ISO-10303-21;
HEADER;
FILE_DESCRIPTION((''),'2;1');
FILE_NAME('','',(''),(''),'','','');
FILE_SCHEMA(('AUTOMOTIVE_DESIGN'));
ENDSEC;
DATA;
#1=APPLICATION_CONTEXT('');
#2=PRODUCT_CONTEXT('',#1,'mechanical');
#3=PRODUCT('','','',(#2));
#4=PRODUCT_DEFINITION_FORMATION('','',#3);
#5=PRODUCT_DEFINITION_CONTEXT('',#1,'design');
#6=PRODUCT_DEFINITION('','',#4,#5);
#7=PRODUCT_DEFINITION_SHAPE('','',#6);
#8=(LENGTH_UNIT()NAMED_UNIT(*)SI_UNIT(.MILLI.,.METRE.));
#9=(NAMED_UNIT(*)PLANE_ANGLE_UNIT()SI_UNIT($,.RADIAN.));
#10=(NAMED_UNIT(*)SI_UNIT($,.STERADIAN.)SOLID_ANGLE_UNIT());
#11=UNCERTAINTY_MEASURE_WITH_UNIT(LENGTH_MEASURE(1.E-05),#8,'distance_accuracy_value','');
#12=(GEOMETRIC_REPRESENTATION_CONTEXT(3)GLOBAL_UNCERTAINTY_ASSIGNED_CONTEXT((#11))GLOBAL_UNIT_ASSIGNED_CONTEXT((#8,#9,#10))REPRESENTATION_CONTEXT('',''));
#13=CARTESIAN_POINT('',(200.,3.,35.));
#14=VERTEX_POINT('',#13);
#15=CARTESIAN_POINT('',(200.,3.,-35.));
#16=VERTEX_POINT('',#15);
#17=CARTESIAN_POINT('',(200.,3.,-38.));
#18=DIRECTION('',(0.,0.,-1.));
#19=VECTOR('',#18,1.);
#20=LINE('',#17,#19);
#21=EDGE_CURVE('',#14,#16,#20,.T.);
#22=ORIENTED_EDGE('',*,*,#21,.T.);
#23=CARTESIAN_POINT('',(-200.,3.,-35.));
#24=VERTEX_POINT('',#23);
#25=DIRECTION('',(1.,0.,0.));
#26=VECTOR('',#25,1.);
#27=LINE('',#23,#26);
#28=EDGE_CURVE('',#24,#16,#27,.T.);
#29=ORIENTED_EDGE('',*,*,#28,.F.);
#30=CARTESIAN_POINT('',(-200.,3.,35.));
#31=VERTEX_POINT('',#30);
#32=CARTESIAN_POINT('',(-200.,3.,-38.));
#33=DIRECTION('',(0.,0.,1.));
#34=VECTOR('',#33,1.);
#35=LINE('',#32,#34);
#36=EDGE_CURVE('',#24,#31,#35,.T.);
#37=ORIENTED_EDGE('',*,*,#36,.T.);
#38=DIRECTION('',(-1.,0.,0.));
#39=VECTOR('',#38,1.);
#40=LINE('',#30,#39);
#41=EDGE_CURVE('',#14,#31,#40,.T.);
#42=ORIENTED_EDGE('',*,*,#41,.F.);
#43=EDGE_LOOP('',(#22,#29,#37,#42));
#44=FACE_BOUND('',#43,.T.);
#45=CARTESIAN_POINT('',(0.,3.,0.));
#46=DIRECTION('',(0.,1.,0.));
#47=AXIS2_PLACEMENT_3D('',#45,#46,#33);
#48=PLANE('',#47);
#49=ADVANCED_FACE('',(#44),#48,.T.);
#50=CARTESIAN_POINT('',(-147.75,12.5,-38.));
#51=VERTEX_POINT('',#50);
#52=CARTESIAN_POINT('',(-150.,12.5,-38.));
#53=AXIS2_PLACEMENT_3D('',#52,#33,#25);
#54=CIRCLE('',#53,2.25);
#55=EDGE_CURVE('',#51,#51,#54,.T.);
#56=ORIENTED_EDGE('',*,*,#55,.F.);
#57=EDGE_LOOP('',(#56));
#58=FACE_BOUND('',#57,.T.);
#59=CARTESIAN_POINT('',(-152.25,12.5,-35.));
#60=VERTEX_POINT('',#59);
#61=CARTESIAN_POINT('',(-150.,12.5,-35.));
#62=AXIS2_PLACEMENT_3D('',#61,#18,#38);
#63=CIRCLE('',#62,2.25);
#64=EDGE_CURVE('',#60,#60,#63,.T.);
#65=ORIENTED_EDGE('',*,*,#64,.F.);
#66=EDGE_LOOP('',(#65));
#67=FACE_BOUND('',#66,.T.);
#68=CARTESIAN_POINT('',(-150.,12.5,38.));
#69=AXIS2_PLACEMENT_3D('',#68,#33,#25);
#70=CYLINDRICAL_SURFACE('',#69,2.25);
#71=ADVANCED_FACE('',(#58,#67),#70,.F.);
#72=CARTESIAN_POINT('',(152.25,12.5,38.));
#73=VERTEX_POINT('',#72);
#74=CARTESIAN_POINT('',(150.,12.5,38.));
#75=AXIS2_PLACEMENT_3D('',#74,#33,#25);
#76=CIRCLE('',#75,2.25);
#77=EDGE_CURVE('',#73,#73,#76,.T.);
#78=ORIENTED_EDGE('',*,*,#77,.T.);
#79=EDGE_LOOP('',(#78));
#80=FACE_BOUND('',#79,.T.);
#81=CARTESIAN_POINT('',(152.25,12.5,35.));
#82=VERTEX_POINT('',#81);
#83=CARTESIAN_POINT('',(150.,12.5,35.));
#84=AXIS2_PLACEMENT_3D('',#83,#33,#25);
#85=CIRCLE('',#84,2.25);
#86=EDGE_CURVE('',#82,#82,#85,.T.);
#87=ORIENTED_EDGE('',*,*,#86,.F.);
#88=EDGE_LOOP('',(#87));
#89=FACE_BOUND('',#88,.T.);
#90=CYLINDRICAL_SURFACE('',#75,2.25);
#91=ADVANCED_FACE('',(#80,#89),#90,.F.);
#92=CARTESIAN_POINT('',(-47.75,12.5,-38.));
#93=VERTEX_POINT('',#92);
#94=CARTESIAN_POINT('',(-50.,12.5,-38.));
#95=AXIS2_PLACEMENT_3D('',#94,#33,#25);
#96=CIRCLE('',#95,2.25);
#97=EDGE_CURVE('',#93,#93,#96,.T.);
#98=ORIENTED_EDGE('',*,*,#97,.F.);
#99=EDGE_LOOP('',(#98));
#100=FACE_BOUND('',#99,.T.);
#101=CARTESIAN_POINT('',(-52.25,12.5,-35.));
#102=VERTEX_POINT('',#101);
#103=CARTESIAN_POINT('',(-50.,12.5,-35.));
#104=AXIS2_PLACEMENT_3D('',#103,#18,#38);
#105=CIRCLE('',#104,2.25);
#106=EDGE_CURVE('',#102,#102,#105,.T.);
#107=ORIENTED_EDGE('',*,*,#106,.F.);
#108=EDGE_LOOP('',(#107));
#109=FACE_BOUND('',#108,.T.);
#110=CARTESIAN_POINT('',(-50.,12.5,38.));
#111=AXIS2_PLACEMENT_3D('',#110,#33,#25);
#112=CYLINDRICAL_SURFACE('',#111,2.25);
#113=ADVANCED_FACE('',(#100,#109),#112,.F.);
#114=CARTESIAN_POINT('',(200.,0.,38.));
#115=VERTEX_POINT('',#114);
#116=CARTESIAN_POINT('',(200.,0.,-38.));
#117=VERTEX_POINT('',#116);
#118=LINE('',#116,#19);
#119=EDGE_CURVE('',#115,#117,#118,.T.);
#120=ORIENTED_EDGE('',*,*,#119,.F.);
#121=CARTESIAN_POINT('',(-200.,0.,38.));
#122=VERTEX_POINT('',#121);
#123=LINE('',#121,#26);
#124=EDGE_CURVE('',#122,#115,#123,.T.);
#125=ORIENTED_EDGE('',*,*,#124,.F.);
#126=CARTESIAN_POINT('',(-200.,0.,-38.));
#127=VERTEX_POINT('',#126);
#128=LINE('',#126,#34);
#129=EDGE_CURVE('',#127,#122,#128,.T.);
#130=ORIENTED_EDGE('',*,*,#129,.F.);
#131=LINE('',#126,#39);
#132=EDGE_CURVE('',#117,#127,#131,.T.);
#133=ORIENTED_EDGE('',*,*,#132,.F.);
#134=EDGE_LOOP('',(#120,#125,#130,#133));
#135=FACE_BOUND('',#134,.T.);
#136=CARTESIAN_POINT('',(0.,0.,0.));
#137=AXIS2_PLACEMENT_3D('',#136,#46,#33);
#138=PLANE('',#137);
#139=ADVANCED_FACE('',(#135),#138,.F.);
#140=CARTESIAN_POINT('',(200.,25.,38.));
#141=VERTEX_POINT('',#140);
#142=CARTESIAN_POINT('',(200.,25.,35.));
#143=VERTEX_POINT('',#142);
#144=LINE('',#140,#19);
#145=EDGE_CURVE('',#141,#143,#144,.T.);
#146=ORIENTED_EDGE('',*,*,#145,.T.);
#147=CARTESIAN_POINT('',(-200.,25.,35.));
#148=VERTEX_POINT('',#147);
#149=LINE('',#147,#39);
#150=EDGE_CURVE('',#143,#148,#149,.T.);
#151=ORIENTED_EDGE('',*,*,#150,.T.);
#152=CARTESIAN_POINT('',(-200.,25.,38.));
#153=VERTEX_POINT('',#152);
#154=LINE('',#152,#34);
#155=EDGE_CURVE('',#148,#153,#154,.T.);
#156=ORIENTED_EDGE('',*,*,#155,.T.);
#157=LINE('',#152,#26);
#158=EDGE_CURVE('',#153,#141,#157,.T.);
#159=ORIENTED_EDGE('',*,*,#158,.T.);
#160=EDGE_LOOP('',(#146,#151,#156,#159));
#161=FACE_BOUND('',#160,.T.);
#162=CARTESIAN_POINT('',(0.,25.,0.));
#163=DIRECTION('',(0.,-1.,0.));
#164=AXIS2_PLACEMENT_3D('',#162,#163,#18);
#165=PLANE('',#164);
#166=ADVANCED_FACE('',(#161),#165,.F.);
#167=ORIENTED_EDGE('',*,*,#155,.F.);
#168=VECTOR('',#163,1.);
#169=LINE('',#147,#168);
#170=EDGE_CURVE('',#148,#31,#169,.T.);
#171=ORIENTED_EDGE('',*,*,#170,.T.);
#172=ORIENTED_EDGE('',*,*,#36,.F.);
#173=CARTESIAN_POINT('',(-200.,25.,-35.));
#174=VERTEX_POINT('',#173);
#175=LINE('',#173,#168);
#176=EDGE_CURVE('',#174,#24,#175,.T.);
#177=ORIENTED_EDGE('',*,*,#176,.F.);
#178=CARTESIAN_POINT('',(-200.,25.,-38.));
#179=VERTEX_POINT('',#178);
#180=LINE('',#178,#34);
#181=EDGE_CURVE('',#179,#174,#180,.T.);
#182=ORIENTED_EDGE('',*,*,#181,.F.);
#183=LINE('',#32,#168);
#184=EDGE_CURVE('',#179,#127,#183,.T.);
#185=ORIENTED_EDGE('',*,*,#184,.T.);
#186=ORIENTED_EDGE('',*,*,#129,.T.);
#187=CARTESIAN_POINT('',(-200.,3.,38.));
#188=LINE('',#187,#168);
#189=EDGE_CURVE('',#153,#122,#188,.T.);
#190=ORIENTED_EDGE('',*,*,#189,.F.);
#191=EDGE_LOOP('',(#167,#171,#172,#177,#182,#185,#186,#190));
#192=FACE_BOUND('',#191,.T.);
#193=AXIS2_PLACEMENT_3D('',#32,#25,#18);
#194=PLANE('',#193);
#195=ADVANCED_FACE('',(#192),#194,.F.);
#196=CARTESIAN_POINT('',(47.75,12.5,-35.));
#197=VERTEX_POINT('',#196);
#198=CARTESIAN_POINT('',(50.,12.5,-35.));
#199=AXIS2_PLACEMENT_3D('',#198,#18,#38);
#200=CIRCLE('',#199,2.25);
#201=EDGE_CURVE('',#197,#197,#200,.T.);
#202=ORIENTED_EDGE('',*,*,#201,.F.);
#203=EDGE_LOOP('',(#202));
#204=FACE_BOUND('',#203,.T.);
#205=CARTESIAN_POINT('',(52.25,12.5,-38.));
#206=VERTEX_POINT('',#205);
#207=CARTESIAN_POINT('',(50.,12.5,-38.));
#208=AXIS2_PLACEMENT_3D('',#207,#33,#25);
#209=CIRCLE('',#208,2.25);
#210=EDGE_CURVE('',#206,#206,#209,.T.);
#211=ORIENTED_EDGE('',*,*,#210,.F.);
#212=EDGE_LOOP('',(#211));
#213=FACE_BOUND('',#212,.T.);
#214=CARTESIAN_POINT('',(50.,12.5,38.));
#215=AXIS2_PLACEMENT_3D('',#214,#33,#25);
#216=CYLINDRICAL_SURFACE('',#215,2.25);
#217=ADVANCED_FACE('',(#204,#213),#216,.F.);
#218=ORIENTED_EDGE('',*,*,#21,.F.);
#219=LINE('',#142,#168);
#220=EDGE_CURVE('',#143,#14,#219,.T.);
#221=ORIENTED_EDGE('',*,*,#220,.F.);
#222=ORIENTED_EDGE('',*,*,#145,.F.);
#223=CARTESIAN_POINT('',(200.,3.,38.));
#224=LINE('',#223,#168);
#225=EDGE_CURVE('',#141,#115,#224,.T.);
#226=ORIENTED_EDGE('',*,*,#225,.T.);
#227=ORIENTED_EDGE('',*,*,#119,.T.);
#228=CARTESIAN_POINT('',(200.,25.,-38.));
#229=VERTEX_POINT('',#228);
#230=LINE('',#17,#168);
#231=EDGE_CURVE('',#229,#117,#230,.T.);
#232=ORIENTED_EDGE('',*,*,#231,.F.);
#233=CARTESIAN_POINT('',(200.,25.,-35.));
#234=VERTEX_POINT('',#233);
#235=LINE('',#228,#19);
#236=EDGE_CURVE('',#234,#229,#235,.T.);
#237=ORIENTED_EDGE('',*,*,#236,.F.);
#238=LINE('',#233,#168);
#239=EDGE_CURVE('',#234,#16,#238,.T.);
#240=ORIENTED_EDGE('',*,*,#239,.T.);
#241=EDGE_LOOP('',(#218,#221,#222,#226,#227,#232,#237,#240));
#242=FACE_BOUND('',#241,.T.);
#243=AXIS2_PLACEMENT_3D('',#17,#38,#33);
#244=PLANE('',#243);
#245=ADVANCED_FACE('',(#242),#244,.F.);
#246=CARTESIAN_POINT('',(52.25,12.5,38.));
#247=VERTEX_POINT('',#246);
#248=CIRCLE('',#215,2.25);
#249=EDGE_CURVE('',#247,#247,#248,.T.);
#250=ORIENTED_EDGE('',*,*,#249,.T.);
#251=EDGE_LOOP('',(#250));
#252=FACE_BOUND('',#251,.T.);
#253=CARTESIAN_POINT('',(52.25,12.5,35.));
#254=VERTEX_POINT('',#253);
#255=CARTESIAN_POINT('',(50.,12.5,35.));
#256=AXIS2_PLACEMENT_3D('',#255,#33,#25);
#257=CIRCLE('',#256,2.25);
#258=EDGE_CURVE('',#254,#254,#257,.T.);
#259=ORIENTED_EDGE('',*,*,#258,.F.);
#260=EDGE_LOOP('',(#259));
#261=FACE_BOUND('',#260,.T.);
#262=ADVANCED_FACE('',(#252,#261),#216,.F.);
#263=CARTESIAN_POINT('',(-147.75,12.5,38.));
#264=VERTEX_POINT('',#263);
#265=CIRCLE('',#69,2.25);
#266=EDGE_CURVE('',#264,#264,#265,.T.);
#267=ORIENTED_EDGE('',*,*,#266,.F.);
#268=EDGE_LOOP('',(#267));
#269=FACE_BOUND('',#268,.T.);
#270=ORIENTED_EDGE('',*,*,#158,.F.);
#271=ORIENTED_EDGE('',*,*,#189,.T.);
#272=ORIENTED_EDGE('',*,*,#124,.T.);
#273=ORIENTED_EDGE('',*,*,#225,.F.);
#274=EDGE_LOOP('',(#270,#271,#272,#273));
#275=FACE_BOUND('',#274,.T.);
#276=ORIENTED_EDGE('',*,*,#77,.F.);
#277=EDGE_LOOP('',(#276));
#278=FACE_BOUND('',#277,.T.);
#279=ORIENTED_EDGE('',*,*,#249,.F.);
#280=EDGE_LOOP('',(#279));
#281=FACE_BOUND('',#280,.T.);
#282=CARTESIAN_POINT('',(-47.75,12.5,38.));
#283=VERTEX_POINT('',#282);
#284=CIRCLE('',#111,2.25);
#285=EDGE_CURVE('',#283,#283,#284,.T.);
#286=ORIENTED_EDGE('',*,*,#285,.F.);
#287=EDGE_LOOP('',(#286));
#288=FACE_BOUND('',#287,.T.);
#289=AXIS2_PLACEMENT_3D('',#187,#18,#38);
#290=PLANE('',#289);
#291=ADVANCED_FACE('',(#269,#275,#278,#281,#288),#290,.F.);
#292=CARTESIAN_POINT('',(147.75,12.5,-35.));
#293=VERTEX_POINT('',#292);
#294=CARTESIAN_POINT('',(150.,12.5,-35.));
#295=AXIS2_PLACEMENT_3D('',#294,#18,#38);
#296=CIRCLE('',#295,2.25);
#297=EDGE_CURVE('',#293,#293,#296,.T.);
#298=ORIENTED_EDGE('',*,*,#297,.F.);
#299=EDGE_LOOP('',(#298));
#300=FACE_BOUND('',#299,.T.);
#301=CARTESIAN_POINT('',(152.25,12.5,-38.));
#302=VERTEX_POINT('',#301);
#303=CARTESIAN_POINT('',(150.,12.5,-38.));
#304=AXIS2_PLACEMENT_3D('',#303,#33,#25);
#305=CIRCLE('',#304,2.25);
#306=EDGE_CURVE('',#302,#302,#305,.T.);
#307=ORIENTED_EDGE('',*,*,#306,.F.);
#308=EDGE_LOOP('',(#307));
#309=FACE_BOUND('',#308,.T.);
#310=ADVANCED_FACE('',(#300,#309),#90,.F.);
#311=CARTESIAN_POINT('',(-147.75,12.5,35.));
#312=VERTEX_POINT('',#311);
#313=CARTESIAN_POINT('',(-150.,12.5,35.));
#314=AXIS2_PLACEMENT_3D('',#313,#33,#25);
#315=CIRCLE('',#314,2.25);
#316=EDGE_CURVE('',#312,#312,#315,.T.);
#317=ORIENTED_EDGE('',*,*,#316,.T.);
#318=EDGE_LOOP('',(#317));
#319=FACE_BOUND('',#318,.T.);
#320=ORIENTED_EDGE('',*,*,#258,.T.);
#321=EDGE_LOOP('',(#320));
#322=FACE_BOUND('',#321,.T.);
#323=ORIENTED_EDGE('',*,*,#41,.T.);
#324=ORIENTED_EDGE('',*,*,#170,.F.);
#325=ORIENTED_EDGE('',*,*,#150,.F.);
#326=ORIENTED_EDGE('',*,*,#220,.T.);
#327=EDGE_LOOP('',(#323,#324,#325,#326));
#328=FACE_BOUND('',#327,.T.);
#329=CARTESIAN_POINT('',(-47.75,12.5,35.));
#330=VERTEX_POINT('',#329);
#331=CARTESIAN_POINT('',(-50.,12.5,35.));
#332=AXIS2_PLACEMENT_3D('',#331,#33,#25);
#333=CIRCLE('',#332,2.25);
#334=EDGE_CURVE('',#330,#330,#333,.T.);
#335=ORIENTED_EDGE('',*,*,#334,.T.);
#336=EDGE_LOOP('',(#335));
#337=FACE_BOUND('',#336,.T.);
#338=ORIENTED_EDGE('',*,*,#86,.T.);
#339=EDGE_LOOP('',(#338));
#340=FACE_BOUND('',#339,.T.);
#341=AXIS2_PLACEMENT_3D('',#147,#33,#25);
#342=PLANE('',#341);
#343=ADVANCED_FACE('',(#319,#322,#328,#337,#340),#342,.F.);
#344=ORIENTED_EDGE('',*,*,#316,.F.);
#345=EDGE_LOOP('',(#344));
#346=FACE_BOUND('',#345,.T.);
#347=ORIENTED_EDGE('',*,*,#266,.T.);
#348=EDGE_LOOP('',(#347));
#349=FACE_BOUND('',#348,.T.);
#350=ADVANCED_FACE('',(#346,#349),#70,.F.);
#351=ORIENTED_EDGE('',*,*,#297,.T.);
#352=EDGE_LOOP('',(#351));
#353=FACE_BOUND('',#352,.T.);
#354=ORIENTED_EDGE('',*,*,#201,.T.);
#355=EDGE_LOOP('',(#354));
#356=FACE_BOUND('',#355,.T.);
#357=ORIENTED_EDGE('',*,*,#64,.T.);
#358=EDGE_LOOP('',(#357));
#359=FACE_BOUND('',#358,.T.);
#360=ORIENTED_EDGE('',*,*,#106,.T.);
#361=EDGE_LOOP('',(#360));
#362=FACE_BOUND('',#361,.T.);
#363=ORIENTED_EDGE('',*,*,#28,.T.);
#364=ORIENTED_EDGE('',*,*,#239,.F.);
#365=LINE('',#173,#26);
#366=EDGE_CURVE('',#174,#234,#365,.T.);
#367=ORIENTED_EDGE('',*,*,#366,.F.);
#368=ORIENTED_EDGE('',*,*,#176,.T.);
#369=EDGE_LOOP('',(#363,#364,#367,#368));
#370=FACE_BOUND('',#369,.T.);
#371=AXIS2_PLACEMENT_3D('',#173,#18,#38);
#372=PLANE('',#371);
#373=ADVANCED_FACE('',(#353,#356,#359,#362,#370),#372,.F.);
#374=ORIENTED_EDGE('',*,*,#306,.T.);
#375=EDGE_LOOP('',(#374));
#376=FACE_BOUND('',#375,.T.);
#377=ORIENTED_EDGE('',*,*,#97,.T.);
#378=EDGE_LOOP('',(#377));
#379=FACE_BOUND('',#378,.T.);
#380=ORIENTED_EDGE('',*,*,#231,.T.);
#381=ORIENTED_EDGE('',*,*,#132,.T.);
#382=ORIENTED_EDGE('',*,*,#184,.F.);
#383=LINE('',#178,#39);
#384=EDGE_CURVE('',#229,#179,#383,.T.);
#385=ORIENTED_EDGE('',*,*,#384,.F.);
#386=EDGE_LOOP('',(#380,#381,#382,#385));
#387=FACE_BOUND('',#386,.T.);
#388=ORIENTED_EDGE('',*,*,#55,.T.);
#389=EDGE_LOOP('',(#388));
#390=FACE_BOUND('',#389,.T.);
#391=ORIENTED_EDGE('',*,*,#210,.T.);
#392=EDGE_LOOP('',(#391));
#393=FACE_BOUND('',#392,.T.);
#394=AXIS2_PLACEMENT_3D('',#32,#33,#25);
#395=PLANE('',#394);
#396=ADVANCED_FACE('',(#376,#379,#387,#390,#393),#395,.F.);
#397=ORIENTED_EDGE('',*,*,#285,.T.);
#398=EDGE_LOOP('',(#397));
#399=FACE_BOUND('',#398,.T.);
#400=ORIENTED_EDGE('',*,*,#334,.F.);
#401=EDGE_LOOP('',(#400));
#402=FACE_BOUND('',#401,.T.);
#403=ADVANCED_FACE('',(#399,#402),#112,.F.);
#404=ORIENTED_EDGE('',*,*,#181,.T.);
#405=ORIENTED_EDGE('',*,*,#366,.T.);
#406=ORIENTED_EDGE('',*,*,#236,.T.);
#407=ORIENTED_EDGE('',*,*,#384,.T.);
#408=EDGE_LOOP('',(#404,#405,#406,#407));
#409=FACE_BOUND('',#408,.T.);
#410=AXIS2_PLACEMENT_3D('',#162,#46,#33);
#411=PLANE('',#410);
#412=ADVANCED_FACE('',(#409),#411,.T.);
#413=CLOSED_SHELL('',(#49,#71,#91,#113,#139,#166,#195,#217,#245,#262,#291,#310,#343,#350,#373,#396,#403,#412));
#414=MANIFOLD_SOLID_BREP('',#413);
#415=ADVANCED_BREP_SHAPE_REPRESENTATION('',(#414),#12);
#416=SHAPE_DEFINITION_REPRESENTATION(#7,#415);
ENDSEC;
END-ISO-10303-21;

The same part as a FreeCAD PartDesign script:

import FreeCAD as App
import Part
import Sketcher

doc = App.newDocument("Part")
body = doc.addObject("PartDesign::Body", "Body")

# Sketch on XZ plane
sketch1 = body.newObject("Sketcher::SketchObject", "Sketch")
sketch1.AttachmentSupport = (doc.getObject("XZ_Plane"), [""])
sketch1.MapMode = "FlatFace"
sketch1.addGeometry([
    Part.LineSegment(App.Vector(-200, -38, 0), App.Vector(-200, 38, 0)),
    Part.LineSegment(App.Vector(-200, 38, 0), App.Vector(200, 38, 0)),
    Part.LineSegment(App.Vector(200, 38, 0), App.Vector(200, -38, 0)),
    Part.LineSegment(App.Vector(200, -38, 0), App.Vector(-200, -38, 0)),
], False)
sketch1.addConstraint([
    Sketcher.Constraint("Coincident", 0, 2, 1, 1),
    Sketcher.Constraint("Coincident", 1, 2, 2, 1),
    Sketcher.Constraint("Coincident", 2, 2, 3, 1),
    Sketcher.Constraint("Coincident", 3, 2, 0, 1),
    Sketcher.Constraint("Vertical", 0),
    Sketcher.Constraint("Horizontal", 1),
    Sketcher.Constraint("Vertical", 2),
    Sketcher.Constraint("Horizontal", 3),
    Sketcher.Constraint("Symmetric", 0, 2, 2, 2, -1, 1),
    Sketcher.Constraint("DistanceX", 1, 1, 1, 2, 400.0),
    Sketcher.Constraint("DistanceY", 0, 1, 0, 2, 76.0),
])
pad1 = body.newObject("PartDesign::Pad", "Pad")
pad1.Profile = sketch1
pad1.Length = 3
pad1.Reversed = True

# Sketch on XZ plane
sketch2 = body.newObject("Sketcher::SketchObject", "Sketch001")
sketch2.AttachmentSupport = (doc.getObject("XZ_Plane"), [""])
sketch2.MapMode = "FlatFace"
sketch2.AttachmentOffset = App.Placement(App.Vector(0, 0, -3), App.Rotation())
sketch2.addGeometry([
    Part.LineSegment(App.Vector(-200, -38, 0), App.Vector(-200, -35, 0)),  # 0
    Part.LineSegment(App.Vector(-200, -35, 0), App.Vector(200, -35, 0)),  # 1
    Part.LineSegment(App.Vector(200, -35, 0), App.Vector(200, -38, 0)),  # 2
    Part.LineSegment(App.Vector(200, -38, 0), App.Vector(-200, -38, 0)),  # 3
    Part.LineSegment(App.Vector(-200, 35, 0), App.Vector(-200, 38, 0)),  # 4
    Part.LineSegment(App.Vector(-200, 38, 0), App.Vector(200, 38, 0)),  # 5
    Part.LineSegment(App.Vector(200, 38, 0), App.Vector(200, 35, 0)),  # 6
    Part.LineSegment(App.Vector(200, 35, 0), App.Vector(-200, 35, 0)),  # 7
], False)
sketch2.addConstraint([
    Sketcher.Constraint("Coincident", 0, 2, 1, 1),
    Sketcher.Constraint("Coincident", 1, 2, 2, 1),
    Sketcher.Constraint("Coincident", 2, 2, 3, 1),
    Sketcher.Constraint("Coincident", 3, 2, 0, 1),
    Sketcher.Constraint("Coincident", 4, 2, 5, 1),
    Sketcher.Constraint("Coincident", 5, 2, 6, 1),
    Sketcher.Constraint("Coincident", 6, 2, 7, 1),
    Sketcher.Constraint("Coincident", 7, 2, 4, 1),
    Sketcher.Constraint("Vertical", 0),
    Sketcher.Constraint("Horizontal", 1),
    Sketcher.Constraint("Vertical", 2),
    Sketcher.Constraint("Horizontal", 3),
    Sketcher.Constraint("Vertical", 4),
    Sketcher.Constraint("Horizontal", 5),
    Sketcher.Constraint("Vertical", 6),
    Sketcher.Constraint("Horizontal", 7),
    Sketcher.Constraint("Symmetric", 2, 2, 4, 2, -1, 1),
    Sketcher.Constraint("Symmetric", 0, 2, 6, 2, -1, 1),
    Sketcher.Constraint("Vertical", 3, 2, 4, 2),
    Sketcher.Constraint("DistanceX", 1, 1, 1, 2, 400.0),
    Sketcher.Constraint("DistanceY", 0, 1, 0, 2, 3.0),
    Sketcher.Constraint("DistanceY", 0, 2, -1, 1, 35.0),
])
pad2 = body.newObject("PartDesign::Pad", "Pad001")
pad2.Profile = sketch2
pad2.Length = 22
pad2.Reversed = True

# Sketch on XY plane
sketch3 = body.newObject("Sketcher::SketchObject", "Sketch002")
sketch3.AttachmentSupport = (doc.getObject("XY_Plane"), [""])
sketch3.MapMode = "FlatFace"
sketch3.AttachmentOffset = App.Placement(App.Vector(0, 0, 38), App.Rotation())
sketch3.addGeometry([
    Part.Circle(App.Vector(-150, 12.5, 0), App.Vector(0, 0, 1), 2.2),
    Part.Circle(App.Vector(150, 12.5, 0), App.Vector(0, 0, 1), 2.2),
    Part.Circle(App.Vector(-50, 12.5, 0), App.Vector(0, 0, 1), 2.2),
    Part.Circle(App.Vector(50, 12.5, 0), App.Vector(0, 0, 1), 2.2),
], False)
sketch3.addConstraint([
    Sketcher.Constraint("Equal", 0, 1),
    Sketcher.Constraint("Equal", 1, 2),
    Sketcher.Constraint("Equal", 2, 3),
    Sketcher.Constraint("Symmetric", 0, 3, 1, 3, -2),
    Sketcher.Constraint("Symmetric", 2, 3, 3, 3, -2),
    Sketcher.Constraint("Horizontal", 1, 3, 2, 3),
    Sketcher.Constraint("Diameter", 0, 4.5),
    Sketcher.Constraint("DistanceX", 0, 3, -1, 1, 150.0),
    Sketcher.Constraint("DistanceX", 2, 3, -1, 1, 50.0),
    Sketcher.Constraint("DistanceY", -1, 1, 0, 3, 12.5),
])
doc.recompute()
hole = body.newObject("PartDesign::Hole", "Hole")
hole.Profile = sketch3
hole.ThreadType = "None"
hole.Diameter = 4.5
hole.DepthType = "ThroughAll"

doc.recompute()
